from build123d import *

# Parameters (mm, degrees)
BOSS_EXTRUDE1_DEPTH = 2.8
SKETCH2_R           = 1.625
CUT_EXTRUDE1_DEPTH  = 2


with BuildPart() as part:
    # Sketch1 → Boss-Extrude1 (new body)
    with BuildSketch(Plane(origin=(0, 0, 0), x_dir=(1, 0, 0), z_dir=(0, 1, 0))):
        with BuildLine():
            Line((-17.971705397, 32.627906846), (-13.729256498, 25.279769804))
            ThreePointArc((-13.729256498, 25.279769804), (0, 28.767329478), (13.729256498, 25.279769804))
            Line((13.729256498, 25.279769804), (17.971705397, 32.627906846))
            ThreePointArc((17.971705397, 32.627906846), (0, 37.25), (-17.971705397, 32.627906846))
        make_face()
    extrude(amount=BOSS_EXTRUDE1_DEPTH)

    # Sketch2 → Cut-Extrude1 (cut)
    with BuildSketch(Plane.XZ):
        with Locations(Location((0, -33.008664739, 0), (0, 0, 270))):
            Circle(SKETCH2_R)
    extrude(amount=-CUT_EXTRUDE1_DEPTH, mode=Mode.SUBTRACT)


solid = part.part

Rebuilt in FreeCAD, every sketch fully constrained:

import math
import FreeCAD as App
import Part
import Sketcher
Q = App.Units.Quantity

doc = App.newDocument("Part")
body = doc.addObject("PartDesign::Body", "Body")

sketch1 = body.newObject("Sketcher::SketchObject", "Sketch")
sketch1.AttachmentSupport = (doc.getObject("XZ_Plane"), [""])
sketch1.MapMode = "FlatFace"
sketch1.addGeometry(Part.LineSegment(App.Vector(-18, -33, 0), App.Vector(-14, -25, 0)), False)
sketch1.addGeometry(Part.ArcOfCircle(Part.Circle(App.Vector(0, 0, 0), App.Vector(0, 0, 1), 29), math.radians(-119), math.radians(-61)), False)
sketch1.addGeometry(Part.LineSegment(App.Vector(14, -25, 0), App.Vector(18, -33, 0)), False)
sketch1.addGeometry(Part.ArcOfCircle(Part.Circle(App.Vector(0, 0, 0), App.Vector(0, 0, 1), 37), math.radians(-119), math.radians(-61)), False)
sketch1.addConstraint(Sketcher.Constraint("Coincident", 0, 2, 1, 1))
sketch1.addConstraint(Sketcher.Constraint("Coincident", 1, 2, 2, 1))
sketch1.addConstraint(Sketcher.Constraint("Coincident", 2, 2, 3, 2))
sketch1.addConstraint(Sketcher.Constraint("Coincident", 3, 1, 0, 1))
sketch1.addConstraint(Sketcher.Constraint("Coincident", 1, 3, -1, 1))
sketch1.addConstraint(Sketcher.Constraint("Coincident", 3, 3, -1, 1))
sketch1.addConstraint(Sketcher.Constraint("Horizontal", 0, 2, 1, 2))
sketch1.addConstraint(Sketcher.Constraint("Horizontal", 2, 2, 3, 1))
sketch1.addConstraint(Sketcher.Constraint("Angle", 0, Q("60 deg")))
sketch1.addConstraint(Sketcher.Constraint("Radius", 3, Q("37.25 mm")))
sketch1.addConstraint(Sketcher.Constraint("Radius", 1, Q("28.767329 mm")))
sketch1.addConstraint(Sketcher.Constraint("DistanceY", 0, 2, -1, 1, Q("25.27977 mm")))
pad1 = body.newObject("PartDesign::Pad", "Pad")
pad1.Profile = sketch1
pad1.Length = 2.8
pad1.Reversed = True

sketch2 = body.newObject("Sketcher::SketchObject", "Sketch001")
sketch2.AttachmentSupport = (doc.getObject("XZ_Plane"), [""])
sketch2.MapMode = "FlatFace"
sketch2.addGeometry(Part.Circle(App.Vector(0, -33, 0), App.Vector(0, 0, 1), 1.6), False)
sketch2.addConstraint(Sketcher.Constraint("PointOnObject", 0, 3, -2))
sketch2.addConstraint(Sketcher.Constraint("Diameter", 0, Q("3.25 mm")))
sketch2.addConstraint(Sketcher.Constraint("DistanceY", 0, 3, -1, 1, Q("33.008665 mm")))
pocket1 = body.newObject("PartDesign::Pocket", "Pocket")
pocket1.Profile = sketch2
pocket1.Length = 2

doc.recompute()
